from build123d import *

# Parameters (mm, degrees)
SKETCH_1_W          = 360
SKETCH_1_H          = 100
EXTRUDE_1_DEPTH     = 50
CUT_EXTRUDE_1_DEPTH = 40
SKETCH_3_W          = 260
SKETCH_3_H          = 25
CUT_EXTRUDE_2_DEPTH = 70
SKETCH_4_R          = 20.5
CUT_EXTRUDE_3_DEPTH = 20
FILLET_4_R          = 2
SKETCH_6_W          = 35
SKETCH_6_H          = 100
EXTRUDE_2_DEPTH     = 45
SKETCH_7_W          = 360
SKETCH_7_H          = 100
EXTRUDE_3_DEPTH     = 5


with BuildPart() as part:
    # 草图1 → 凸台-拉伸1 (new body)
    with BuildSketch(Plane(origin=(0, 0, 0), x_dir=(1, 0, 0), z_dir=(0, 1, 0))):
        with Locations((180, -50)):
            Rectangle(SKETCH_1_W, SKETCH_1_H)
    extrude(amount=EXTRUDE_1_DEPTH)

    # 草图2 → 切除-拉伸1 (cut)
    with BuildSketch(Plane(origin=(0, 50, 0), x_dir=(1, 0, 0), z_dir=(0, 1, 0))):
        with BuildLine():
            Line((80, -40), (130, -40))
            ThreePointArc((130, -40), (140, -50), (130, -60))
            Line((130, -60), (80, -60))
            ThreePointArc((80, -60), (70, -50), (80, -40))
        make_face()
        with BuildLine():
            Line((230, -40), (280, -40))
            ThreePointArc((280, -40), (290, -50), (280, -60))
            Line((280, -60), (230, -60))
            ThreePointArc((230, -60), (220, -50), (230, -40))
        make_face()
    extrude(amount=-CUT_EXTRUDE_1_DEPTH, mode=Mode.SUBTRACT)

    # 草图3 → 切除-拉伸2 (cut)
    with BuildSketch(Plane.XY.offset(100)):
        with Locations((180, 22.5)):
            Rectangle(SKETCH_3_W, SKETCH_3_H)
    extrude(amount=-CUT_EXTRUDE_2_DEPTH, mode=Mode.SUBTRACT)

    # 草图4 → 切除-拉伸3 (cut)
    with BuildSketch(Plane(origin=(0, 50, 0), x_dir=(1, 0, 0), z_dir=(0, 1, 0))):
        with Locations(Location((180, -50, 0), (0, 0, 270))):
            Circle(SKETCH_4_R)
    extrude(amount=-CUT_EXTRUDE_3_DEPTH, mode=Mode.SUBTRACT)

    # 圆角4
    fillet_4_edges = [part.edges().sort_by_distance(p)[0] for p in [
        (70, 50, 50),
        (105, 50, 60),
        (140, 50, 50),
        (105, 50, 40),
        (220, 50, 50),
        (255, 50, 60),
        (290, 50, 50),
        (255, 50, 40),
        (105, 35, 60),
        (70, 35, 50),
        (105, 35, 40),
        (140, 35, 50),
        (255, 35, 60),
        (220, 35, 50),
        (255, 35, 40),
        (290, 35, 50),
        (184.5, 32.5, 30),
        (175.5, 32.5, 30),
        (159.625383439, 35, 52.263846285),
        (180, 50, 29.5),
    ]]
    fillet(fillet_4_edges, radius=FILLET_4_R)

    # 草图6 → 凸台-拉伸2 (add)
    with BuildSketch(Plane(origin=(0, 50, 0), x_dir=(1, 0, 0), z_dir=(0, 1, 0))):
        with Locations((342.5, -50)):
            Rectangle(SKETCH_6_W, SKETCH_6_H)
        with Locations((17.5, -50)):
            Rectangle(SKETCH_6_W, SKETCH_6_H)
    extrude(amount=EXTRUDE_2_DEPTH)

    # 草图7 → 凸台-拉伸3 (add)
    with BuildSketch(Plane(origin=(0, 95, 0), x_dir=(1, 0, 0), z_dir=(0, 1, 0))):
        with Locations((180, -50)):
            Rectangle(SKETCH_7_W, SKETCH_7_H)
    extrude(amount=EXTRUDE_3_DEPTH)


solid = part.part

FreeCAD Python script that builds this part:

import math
import FreeCAD as App
import Part
import Sketcher
from FreeCAD import Vector
Q = App.Units.Quantity


def edges_at(feature, points):
    """Names of the edges that pass closest to the given points."""
    edges = feature.Shape.Edges
    near = lambda p: min(range(len(edges)), key=lambda i: edges[i].distToShape(Part.Vertex(*p))[0])
    return sorted({f"Edge{near(p) + 1}" for p in points})

doc = App.newDocument("Part")
params = doc.addObject("Spreadsheet::Sheet", "Params")
for row, (alias, value) in enumerate([
    ("sketch1_width", "360 mm"),
    ("sketch1_height", "100 mm"),
    ("pad1_length", "50 mm"),
    ("sketch2_radius", "10 mm"),
    ("sketch2_width", "50 mm"),
    ("pocket1_length", "40 mm"),
    ("sketch3_width", "260 mm"),
    ("sketch3_height", "25 mm"),
    ("pocket2_length", "70 mm"),
    ("sketch4_diameter", "41 mm"),
    ("pocket3_length", "20 mm"),
    ("fillet_radius", "2 mm"),
    ("sketch5_width", "35 mm"),
    ("sketch5_height", "100 mm"),
    ("pad2_length", "45 mm"),
    ("sketch6_width", "360 mm"),
    ("sketch6_height", "100 mm"),
    ("pad3_length", "5 mm"),
], start=1):
    params.set(f"A{row}", alias)
    params.set(f"B{row}", "=" + value)
    params.setAlias(f"B{row}", alias)

body = doc.addObject("PartDesign::Body", "Body")

# Sketch on XZ plane
sketch1 = body.newObject("Sketcher::SketchObject", "Sketch")
sketch1.AttachmentSupport = (doc.getObject("XZ_Plane"), [""])
sketch1.MapMode = "FlatFace"
sketch1.addGeometry([
    Part.LineSegment(Vector(0, 0, 0), Vector(0, 100, 0)),
    Part.LineSegment(Vector(0, 100, 0), Vector(360, 100, 0)),
    Part.LineSegment(Vector(360, 100, 0), Vector(360, 0, 0)),
    Part.LineSegment(Vector(360, 0, 0), Vector(0, 0, 0)),
], False)
sketch1.addConstraint([
    Sketcher.Constraint("Coincident", 0, 2, 1, 1),
    Sketcher.Constraint("Coincident", 1, 2, 2, 1),
    Sketcher.Constraint("Coincident", 2, 2, 3, 1),
    Sketcher.Constraint("Coincident", 3, 2, 0, 1),
    Sketcher.Constraint("Vertical", 0),
    Sketcher.Constraint("Horizontal", 1),
    Sketcher.Constraint("Vertical", 2),
    Sketcher.Constraint("Horizontal", 3),
    Sketcher.Constraint("Coincident", 3, 2, -1, 1),
    Sketcher.Constraint("DistanceX", 1, 1, 1, 2, Q("360 mm")),
    Sketcher.Constraint("DistanceY", 0, 1, 0, 2, Q("100 mm")),
])
sketch1.setExpression("Constraints[9]", "Params.sketch1_width")
sketch1.setExpression("Constraints[10]", "Params.sketch1_height")
pad1 = body.newObject("PartDesign::Pad", "Pad")
pad1.Profile = sketch1
pad1.setExpression("Length", "Params.pad1_length")
pad1.Reversed = True

# Sketch on XZ plane
sketch2 = body.newObject("Sketcher::SketchObject", "Sketch001")
sketch2.AttachmentSupport = (doc.getObject("XZ_Plane"), [""])
sketch2.MapMode = "FlatFace"
sketch2.AttachmentOffset = App.Placement(Vector(0, 0, -50), App.Rotation())
sketch2.addGeometry([
    Part.LineSegment(Vector(130, 40, 0), Vector(80, 40, 0)),  # 0
    Part.ArcOfCircle(Part.Circle(Vector(80, 50, 0), Vector(0, 0, 1), 10), math.radians(90), math.radians(270)),  # 1
    Part.LineSegment(Vector(80, 60, 0), Vector(130, 60, 0)),  # 2
    Part.ArcOfCircle(Part.Circle(Vector(130, 50, 0), Vector(0, 0, 1), 10), math.radians(-90), math.radians(90)),  # 3
    Part.LineSegment(Vector(280, 40, 0), Vector(230, 40, 0)),  # 4
    Part.ArcOfCircle(Part.Circle(Vector(230, 50, 0), Vector(0, 0, 1), 10), math.radians(90), math.radians(270)),  # 5
    Part.LineSegment(Vector(230, 60, 0), Vector(280, 60, 0)),  # 6
    Part.ArcOfCircle(Part.Circle(Vector(280, 50, 0), Vector(0, 0, 1), 10), math.radians(-90), math.radians(90)),  # 7
], False)
sketch2.addConstraint([
    Sketcher.Constraint("Tangent", 0, 2, 1, 2),
    Sketcher.Constraint("Tangent", 1, 1, 2, 1),
    Sketcher.Constraint("Tangent", 2, 2, 3, 2),
    Sketcher.Constraint("Tangent", 3, 1, 0, 1),
    Sketcher.Constraint("Tangent", 4, 2, 5, 2),
    Sketcher.Constraint("Tangent", 5, 1, 6, 1),
    Sketcher.Constraint("Tangent", 6, 2, 7, 2),
    Sketcher.Constraint("Tangent", 7, 1, 4, 1),
    Sketcher.Constraint("Horizontal", 0),
    Sketcher.Constraint("Horizontal", 2),
    Sketcher.Constraint("Horizontal", 4),
    Sketcher.Constraint("Horizontal", 6),
    Sketcher.Constraint("Equal", 3, 5),
    Sketcher.Constraint("Horizontal", 3, 3, 5, 3),
    Sketcher.Constraint("Equal", 2, 4),
    Sketcher.Constraint("Radius", 1, Q("10 mm")),
    Sketcher.Constraint("DistanceX", 0, 2, 0, 1, Q("50 mm")),
    Sketcher.Constraint("DistanceX", -1, 1, 1, 3, Q("80 mm")),
    Sketcher.Constraint("DistanceY", -1, 1, 1, 3, Q("50 mm")),
    Sketcher.Constraint("DistanceX", -1, 1, 5, 3, Q("230 mm")),
])
sketch2.setExpression("Constraints[15]", "Params.sketch2_radius")
sketch2.setExpression("Constraints[16]", "Params.sketch2_width")
pocket1 = body.newObject("PartDesign::Pocket", "Pocket")
pocket1.Profile = sketch2
pocket1.setExpression("Length", "Params.pocket1_length")
pocket1.Reversed = True

# Sketch on XY plane
sketch3 = body.newObject("Sketcher::SketchObject", "Sketch002")
sketch3.AttachmentSupport = (doc.getObject("XY_Plane"), [""])
sketch3.MapMode = "FlatFace"
sketch3.AttachmentOffset = App.Placement(Vector(0, 0, 100), App.Rotation())
sketch3.addGeometry([
    Part.LineSegment(Vector(50, 35, 0), Vector(50, 10, 0)),
    Part.LineSegment(Vector(50, 10, 0), Vector(310, 10, 0)),
    Part.LineSegment(Vector(310, 10, 0), Vector(310, 35, 0)),
    Part.LineSegment(Vector(310, 35, 0), Vector(50, 35, 0)),
], False)
sketch3.addConstraint([
    Sketcher.Constraint("Coincident", 0, 2, 1, 1),
    Sketcher.Constraint("Coincident", 1, 2, 2, 1),
    Sketcher.Constraint("Coincident", 2, 2, 3, 1),
    Sketcher.Constraint("Coincident", 3, 2, 0, 1),
    Sketcher.Constraint("Vertical", 0),
    Sketcher.Constraint("Horizontal", 1),
    Sketcher.Constraint("Vertical", 2),
    Sketcher.Constraint("Horizontal", 3),
    Sketcher.Constraint("DistanceX", 1, 1, 1, 2, Q("260 mm")),
    Sketcher.Constraint("DistanceY", 0, 2, 0, 1, Q("25 mm")),
    Sketcher.Constraint("DistanceX", -1, 1, 0, 2, Q("50 mm")),
    Sketcher.Constraint("DistanceY", -1, 1, 0, 2, Q("10 mm")),
])
sketch3.setExpression("Constraints[8]", "Params.sketch3_width")
sketch3.setExpression("Constraints[9]", "Params.sketch3_height")
pocket2 = body.newObject("PartDesign::Pocket", "Pocket001")
pocket2.Profile = sketch3
pocket2.setExpression("Length", "Params.pocket2_length")

# Sketch on XZ plane
sketch4 = body.newObject("Sketcher::SketchObject", "Sketch003")
sketch4.AttachmentSupport = (doc.getObject("XZ_Plane"), [""])
sketch4.MapMode = "FlatFace"
sketch4.AttachmentOffset = App.Placement(Vector(0, 0, -50), App.Rotation())
sketch4.addGeometry(Part.Circle(Vector(180, 50, 0), Vector(0, 0, 1), 20), False)
sketch4.addConstraint([
    Sketcher.Constraint("Diameter", 0, Q("41 mm")),
    Sketcher.Constraint("DistanceX", -1, 1, 0, 3, Q("180 mm")),
    Sketcher.Constraint("DistanceY", -1, 1, 0, 3, Q("50 mm")),
])
sketch4.setExpression("Constraints[0]", "Params.sketch4_diameter")
pocket3 = body.newObject("PartDesign::Pocket", "Pocket002")
pocket3.Profile = sketch4
pocket3.setExpression("Length", "Params.pocket3_length")
pocket3.Reversed = True
doc.recompute()

fillet = body.newObject("PartDesign::Fillet", "Fillet")
fillet.Base = (pocket3, edges_at(pocket3, [
    (70, 50, 50),
    (105, 50, 60),
    (140, 50, 50),
    (105, 50, 40),
    (220, 50, 50),
    (255, 50, 60),
    (290, 50, 50),
    (255, 50, 40),
    (105, 35, 60),
    (70, 35, 50),
    (105, 35, 40),
    (140, 35, 50),
    (255, 35, 60),
    (220, 35, 50),
    (255, 35, 40),
    (290, 35, 50),
    (184.5, 32.5, 30),
    (175.5, 32.5, 30),
    (159.625, 35, 52.264),
    (180, 50, 29.5),
]))
fillet.setExpression("Radius", "Params.fillet_radius")

# Sketch on XZ plane
sketch5 = body.newObject("Sketcher::SketchObject", "Sketch004")
sketch5.AttachmentSupport = (doc.getObject("XZ_Plane"), [""])
sketch5.MapMode = "FlatFace"
sketch5.AttachmentOffset = App.Placement(Vector(0, 0, -50), App.Rotation())
sketch5.addGeometry([
    Part.LineSegment(Vector(325, 0, 0), Vector(325, 100, 0)),  # 0
    Part.LineSegment(Vector(325, 100, 0), Vector(360, 100, 0)),  # 1
    Part.LineSegment(Vector(360, 100, 0), Vector(360, 0, 0)),  # 2
    Part.LineSegment(Vector(360, 0, 0), Vector(325, 0, 0)),  # 3
    Part.LineSegment(Vector(0, 0, 0), Vector(0, 100, 0)),  # 4
    Part.LineSegment(Vector(0, 100, 0), Vector(35, 100, 0)),  # 5
    Part.LineSegment(Vector(35, 100, 0), Vector(35, 0, 0)),  # 6
    Part.LineSegment(Vector(35, 0, 0), Vector(0, 0, 0)),  # 7
], False)
sketch5.addConstraint([
    Sketcher.Constraint("Coincident", 0, 2, 1, 1),
    Sketcher.Constraint("Coincident", 1, 2, 2, 1),
    Sketcher.Constraint("Coincident", 2, 2, 3, 1),
    Sketcher.Constraint("Coincident", 3, 2, 0, 1),
    Sketcher.Constraint("Coincident", 4, 2, 5, 1),
    Sketcher.Constraint("Coincident", 5, 2, 6, 1),
    Sketcher.Constraint("Coincident", 6, 2, 7, 1),
    Sketcher.Constraint("Coincident", 7, 2, 4, 1),
    Sketcher.Constraint("Vertical", 0),
    Sketcher.Constraint("Horizontal", 1),
    Sketcher.Constraint("Vertical", 2),
    Sketcher.Constraint("Horizontal", 3),
    Sketcher.Constraint("Vertical", 4),
    Sketcher.Constraint("Horizontal", 5),
    Sketcher.Constraint("Vertical", 6),
    Sketcher.Constraint("Horizontal", 7),
    Sketcher.Constraint("Coincident", 7, 2, -1, 1),
    Sketcher.Constraint("PointOnObject", 2, 2, -1),
    Sketcher.Constraint("Horizontal", 1, 2, 4, 2),
    Sketcher.Constraint("Equal", 3, 5),
    Sketcher.Constraint("DistanceX", 1, 1, 1, 2, Q("35 mm")),
    Sketcher.Constraint("DistanceY", 0, 1, 0, 2, Q("100 mm")),
    Sketcher.Constraint("DistanceX", -1, 1, 0, 2, Q("325 mm")),
])
sketch5.setExpression("Constraints[20]", "Params.sketch5_width")
sketch5.setExpression("Constraints[21]", "Params.sketch5_height")
pad2 = body.newObject("PartDesign::Pad", "Pad001")
pad2.Profile = sketch5
pad2.setExpression("Length", "Params.pad2_length")
pad2.Reversed = True

# Sketch on XZ plane
sketch6 = body.newObject("Sketcher::SketchObject", "Sketch005")
sketch6.AttachmentSupport = (doc.getObject("XZ_Plane"), [""])
sketch6.MapMode = "FlatFace"
sketch6.AttachmentOffset = App.Placement(Vector(0, 0, -95), App.Rotation())
sketch6.addGeometry([
    Part.LineSegment(Vector(0, 0, 0), Vector(0, 100, 0)),
    Part.LineSegment(Vector(0, 100, 0), Vector(360, 100, 0)),
    Part.LineSegment(Vector(360, 100, 0), Vector(360, 0, 0)),
    Part.LineSegment(Vector(360, 0, 0), Vector(0, 0, 0)),
], False)
sketch6.addConstraint([
    Sketcher.Constraint("Coincident", 0, 2, 1, 1),
    Sketcher.Constraint("Coincident", 1, 2, 2, 1),
    Sketcher.Constraint("Coincident", 2, 2, 3, 1),
    Sketcher.Constraint("Coincident", 3, 2, 0, 1),
    Sketcher.Constraint("Vertical", 0),
    Sketcher.Constraint("Horizontal", 1),
    Sketcher.Constraint("Vertical", 2),
    Sketcher.Constraint("Horizontal", 3),
    Sketcher.Constraint("Coincident", 3, 2, -1, 1),
    Sketcher.Constraint("DistanceX", 1, 1, 1, 2, Q("360 mm")),
    Sketcher.Constraint("DistanceY", 0, 1, 0, 2, Q("100 mm")),
])
sketch6.setExpression("Constraints[9]", "Params.sketch6_width")
sketch6.setExpression("Constraints[10]", "Params.sketch6_height")
pad3 = body.newObject("PartDesign::Pad", "Pad002")
pad3.Profile = sketch6
pad3.setExpression("Length", "Params.pad3_length")
pad3.Reversed = True

doc.recompute()
